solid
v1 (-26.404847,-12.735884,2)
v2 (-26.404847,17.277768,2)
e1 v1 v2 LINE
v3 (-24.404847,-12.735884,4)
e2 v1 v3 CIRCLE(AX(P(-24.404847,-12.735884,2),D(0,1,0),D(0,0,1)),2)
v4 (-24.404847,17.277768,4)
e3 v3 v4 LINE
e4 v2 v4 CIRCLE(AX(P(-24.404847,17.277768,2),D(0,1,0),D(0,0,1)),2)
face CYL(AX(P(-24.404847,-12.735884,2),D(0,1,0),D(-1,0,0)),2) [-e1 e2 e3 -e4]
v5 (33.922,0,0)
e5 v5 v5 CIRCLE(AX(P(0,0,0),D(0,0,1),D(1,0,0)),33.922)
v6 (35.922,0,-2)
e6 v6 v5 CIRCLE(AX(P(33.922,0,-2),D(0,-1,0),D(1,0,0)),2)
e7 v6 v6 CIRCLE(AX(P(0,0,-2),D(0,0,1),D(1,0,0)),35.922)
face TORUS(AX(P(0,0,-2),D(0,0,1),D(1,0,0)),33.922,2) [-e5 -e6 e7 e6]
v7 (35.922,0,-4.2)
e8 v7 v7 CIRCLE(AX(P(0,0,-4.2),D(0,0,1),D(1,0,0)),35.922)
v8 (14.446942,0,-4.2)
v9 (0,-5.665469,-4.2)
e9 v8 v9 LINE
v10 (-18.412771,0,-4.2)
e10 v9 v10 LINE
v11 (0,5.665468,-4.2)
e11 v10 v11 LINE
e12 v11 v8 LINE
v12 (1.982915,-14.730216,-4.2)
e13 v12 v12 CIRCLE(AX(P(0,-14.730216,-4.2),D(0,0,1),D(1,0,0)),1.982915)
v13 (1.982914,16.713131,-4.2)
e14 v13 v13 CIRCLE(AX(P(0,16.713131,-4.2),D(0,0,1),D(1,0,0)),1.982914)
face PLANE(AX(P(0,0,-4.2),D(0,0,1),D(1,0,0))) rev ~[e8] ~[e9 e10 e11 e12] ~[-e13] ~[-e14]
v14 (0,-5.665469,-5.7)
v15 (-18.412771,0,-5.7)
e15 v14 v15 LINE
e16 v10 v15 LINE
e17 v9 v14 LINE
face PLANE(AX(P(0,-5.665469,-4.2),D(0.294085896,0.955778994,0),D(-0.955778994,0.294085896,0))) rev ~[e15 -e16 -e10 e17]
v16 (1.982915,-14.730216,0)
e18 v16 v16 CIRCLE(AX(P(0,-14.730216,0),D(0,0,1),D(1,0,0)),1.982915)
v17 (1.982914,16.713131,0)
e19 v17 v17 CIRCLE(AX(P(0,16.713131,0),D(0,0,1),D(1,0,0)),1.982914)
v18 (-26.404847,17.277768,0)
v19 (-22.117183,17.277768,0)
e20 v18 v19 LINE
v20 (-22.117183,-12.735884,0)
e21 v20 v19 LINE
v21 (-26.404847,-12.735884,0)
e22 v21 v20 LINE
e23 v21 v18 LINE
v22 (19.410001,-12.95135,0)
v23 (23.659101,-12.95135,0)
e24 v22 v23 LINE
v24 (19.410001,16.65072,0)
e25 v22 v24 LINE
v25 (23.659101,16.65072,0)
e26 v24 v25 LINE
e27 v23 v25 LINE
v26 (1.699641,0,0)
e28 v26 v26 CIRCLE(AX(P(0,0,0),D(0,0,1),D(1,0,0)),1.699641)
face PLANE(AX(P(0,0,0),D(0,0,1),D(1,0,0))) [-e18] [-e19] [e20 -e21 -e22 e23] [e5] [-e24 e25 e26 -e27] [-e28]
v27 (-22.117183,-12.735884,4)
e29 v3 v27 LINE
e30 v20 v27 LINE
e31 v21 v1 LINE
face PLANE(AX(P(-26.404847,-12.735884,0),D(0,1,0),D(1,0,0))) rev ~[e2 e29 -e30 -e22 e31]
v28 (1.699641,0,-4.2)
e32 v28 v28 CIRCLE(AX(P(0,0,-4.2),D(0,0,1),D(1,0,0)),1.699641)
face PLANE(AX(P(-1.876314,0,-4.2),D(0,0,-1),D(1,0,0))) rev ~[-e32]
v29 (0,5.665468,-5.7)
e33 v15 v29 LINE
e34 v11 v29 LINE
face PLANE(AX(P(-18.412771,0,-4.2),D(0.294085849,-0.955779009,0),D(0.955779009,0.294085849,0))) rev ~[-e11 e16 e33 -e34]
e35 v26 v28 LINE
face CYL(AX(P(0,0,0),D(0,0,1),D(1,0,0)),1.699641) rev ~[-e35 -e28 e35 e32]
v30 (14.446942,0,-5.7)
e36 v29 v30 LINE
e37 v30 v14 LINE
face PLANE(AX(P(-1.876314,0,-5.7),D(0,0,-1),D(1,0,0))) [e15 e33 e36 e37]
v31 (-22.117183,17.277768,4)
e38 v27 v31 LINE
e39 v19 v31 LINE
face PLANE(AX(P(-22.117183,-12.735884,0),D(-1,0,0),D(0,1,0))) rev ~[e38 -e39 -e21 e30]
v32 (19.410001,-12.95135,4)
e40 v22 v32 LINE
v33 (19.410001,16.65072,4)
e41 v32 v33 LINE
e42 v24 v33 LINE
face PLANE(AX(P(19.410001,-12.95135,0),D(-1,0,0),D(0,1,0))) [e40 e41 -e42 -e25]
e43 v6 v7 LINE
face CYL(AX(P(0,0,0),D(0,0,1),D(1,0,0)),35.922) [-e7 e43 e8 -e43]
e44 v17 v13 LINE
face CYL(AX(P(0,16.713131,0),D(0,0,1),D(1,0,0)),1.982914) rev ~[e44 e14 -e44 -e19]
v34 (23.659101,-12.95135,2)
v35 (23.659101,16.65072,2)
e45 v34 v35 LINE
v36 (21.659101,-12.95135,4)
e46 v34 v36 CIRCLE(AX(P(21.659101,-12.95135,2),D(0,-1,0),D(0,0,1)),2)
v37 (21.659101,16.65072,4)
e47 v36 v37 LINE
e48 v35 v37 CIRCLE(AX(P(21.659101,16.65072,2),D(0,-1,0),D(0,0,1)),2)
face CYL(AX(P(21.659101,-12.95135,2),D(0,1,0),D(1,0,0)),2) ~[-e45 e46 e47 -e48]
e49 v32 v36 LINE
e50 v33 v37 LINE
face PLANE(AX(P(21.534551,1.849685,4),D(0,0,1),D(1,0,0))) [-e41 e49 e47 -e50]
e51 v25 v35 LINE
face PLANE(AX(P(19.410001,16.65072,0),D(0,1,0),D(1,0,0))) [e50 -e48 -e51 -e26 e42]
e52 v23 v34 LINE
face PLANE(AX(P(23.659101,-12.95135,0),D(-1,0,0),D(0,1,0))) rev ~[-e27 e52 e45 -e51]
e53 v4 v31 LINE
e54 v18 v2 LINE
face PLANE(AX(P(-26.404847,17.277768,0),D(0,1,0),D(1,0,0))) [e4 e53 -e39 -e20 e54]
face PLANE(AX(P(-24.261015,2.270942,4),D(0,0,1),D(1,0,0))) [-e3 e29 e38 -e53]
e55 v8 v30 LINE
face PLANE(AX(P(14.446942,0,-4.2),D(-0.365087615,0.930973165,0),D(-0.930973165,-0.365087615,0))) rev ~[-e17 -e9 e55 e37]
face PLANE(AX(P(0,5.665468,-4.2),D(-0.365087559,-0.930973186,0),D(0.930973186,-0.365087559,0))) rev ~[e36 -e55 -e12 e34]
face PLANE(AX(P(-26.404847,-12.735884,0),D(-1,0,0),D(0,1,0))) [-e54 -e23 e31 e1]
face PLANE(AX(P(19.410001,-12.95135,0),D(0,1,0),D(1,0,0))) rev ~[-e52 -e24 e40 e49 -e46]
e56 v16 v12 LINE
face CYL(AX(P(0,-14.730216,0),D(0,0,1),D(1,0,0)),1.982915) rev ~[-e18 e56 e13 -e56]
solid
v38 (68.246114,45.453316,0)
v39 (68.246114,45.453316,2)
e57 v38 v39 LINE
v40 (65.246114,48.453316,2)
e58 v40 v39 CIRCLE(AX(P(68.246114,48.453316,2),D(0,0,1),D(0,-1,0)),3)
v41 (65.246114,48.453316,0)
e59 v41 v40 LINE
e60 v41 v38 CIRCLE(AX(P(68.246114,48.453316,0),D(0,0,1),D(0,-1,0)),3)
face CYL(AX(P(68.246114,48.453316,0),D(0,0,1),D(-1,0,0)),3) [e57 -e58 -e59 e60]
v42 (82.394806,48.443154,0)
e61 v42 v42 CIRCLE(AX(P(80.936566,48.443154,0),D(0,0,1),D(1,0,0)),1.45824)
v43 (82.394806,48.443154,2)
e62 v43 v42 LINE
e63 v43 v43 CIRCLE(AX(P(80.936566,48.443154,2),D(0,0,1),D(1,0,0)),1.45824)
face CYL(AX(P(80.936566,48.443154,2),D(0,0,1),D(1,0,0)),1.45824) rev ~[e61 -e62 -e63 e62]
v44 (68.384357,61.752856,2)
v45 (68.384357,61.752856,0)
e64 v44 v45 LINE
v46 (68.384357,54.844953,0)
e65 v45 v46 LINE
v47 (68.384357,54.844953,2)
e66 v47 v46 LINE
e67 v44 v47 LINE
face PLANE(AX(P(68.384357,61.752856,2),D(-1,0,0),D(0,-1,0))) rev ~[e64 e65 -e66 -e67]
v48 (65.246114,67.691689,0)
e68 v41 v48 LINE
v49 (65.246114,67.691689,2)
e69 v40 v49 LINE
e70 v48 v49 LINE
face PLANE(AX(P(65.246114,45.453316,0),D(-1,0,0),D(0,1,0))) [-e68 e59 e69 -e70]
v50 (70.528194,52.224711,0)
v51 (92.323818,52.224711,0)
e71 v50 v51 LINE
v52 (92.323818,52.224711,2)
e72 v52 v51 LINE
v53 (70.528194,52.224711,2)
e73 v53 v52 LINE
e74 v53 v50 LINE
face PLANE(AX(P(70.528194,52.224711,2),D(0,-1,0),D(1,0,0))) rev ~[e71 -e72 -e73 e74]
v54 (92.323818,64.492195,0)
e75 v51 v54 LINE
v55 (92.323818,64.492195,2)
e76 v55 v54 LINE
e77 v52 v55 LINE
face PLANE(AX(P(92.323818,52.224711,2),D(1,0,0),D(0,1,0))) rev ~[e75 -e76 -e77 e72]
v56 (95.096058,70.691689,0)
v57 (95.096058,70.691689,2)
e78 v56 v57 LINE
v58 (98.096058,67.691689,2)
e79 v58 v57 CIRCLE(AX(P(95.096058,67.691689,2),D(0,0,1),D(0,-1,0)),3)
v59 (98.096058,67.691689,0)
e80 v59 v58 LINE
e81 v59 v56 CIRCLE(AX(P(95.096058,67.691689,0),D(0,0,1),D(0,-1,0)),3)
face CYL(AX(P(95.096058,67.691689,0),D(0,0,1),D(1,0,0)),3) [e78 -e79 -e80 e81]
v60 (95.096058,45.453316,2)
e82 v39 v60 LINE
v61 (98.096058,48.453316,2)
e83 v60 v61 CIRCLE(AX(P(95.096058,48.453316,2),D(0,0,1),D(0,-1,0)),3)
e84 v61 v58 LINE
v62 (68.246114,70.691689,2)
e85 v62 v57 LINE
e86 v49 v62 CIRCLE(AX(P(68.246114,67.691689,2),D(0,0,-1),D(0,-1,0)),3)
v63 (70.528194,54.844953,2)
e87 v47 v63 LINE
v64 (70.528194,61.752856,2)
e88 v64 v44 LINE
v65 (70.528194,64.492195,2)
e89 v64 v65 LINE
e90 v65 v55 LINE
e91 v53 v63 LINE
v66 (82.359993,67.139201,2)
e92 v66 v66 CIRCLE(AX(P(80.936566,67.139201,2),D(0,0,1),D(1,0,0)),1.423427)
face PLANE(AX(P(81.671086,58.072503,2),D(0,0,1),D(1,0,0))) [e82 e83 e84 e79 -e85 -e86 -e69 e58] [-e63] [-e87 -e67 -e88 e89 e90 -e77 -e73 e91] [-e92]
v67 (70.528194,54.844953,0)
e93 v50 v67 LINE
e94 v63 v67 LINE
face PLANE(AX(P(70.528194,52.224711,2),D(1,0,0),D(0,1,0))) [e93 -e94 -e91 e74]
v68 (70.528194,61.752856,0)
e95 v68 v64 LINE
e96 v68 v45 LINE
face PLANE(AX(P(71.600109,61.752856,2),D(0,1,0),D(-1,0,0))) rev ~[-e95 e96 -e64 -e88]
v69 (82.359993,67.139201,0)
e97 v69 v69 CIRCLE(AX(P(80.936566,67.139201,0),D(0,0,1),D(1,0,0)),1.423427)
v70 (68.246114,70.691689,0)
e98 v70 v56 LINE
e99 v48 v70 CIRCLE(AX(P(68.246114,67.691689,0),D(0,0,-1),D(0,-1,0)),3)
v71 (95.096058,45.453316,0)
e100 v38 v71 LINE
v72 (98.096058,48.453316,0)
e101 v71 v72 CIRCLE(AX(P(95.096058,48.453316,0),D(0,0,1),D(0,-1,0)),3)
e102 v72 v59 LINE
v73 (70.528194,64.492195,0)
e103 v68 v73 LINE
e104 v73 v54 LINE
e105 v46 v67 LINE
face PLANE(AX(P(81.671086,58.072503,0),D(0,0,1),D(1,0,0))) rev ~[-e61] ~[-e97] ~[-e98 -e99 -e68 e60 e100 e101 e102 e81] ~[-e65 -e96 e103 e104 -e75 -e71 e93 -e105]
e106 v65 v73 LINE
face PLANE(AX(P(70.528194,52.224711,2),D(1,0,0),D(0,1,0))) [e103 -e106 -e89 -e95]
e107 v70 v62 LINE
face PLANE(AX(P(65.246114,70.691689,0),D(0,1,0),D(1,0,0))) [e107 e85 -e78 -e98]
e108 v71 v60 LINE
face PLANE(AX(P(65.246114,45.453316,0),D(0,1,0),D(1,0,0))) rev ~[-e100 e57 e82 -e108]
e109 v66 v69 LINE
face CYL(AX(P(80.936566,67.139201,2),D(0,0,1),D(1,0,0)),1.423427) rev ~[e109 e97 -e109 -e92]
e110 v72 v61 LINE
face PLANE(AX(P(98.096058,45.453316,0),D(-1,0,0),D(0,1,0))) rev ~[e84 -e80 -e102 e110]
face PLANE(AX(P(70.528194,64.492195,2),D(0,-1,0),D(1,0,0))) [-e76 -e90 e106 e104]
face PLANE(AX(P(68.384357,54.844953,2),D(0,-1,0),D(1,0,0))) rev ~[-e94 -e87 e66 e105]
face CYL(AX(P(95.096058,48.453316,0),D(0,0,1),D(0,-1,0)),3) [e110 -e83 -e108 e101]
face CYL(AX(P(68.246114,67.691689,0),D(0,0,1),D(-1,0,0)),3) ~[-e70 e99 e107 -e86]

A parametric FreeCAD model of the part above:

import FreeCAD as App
import Part
import Sketcher
from FreeCAD import Vector


def edges_at(feature, points):
    """Names of the edges that pass closest to the given points."""
    edges = feature.Shape.Edges
    near = lambda p: min(range(len(edges)), key=lambda i: edges[i].distToShape(Part.Vertex(*p))[0])
    return sorted({f"Edge{near(p) + 1}" for p in points})

doc = App.newDocument("Part")
body = doc.addObject("PartDesign::Body", "Body")

# Sketch on XY plane
sketch1 = doc.addObject("Sketcher::SketchObject", "Sketch")
body.addObject(sketch1)
sketch1.AttachmentSupport = (doc.XY_Plane, [""])
sketch1.MapMode = "FlatFace"
sketch1.addGeometry(Part.Circle(Vector(0, 0, 0), Vector(0, 0, 1), 36), False)
sketch1.addConstraint([
    Sketcher.Constraint("Coincident", 0, 3, -1, 1),
    Sketcher.Constraint("Diameter", 0, 71.844),
])
pad1 = doc.addObject("PartDesign::Pad", "Pad")
body.addObject(pad1)
pad1.Profile = sketch1
pad1.Length = 4.2
pad1.Reversed = True
doc.recompute()

fillet = doc.addObject("PartDesign::Fillet", "Fillet")
body.addObject(fillet)
fillet.Base = (pad1, edges_at(pad1, [(-35.922, 0, 0)]))
fillet.Radius = 2

# Sketch on XY plane
sketch2 = doc.addObject("Sketcher::SketchObject", "Sketch001")
body.addObject(sketch2)
sketch2.AttachmentSupport = (doc.XY_Plane, [""])
sketch2.MapMode = "FlatFace"
sketch2.addGeometry([
    Part.Circle(Vector(0, 0, 0), Vector(0, 0, 1), 1.7),
    Part.Circle(Vector(0, 16.7, 0), Vector(0, 0, 1), 2),
    Part.Circle(Vector(0, -14.7, 0), Vector(0, 0, 1), 2),
], False)
sketch2.addConstraint([
    Sketcher.Constraint("Coincident", 0, 3, -1, 1),
    Sketcher.Constraint("Equal", 1, 2),
    Sketcher.Constraint("PointOnObject", 1, 3, -2),
    Sketcher.Constraint("PointOnObject", 2, 3, -2),
    Sketcher.Constraint("Diameter", 0, 3.399282),
    Sketcher.Constraint("Diameter", 1, 3.965828),
    Sketcher.Constraint("DistanceY", -1, 1, 1, 3, 16.713131),
    Sketcher.Constraint("DistanceY", 2, 3, -1, 1, 14.730216),
])
pocket1 = doc.addObject("PartDesign::Pocket", "Pocket")
body.addObject(pocket1)
pocket1.Profile = sketch2
pocket1.Length = 25

# Sketch on XY plane
sketch3 = doc.addObject("Sketcher::SketchObject", "Sketch002")
body.addObject(sketch3)
sketch3.AttachmentSupport = (doc.XY_Plane, [""])
sketch3.MapMode = "FlatFace"
sketch3.addGeometry([
    Part.LineSegment(Vector(-26.4, 17.3, 0), Vector(-26.4, -12.7, 0)),  # 0
    Part.LineSegment(Vector(-26.4, -12.7, 0), Vector(-22.1, -12.7, 0)),  # 1
    Part.LineSegment(Vector(-22.1, -12.7, 0), Vector(-22.1, 17.3, 0)),  # 2
    Part.LineSegment(Vector(-22.1, 17.3, 0), Vector(-26.4, 17.3, 0)),  # 3
    Part.LineSegment(Vector(19.4, 16.7, 0), Vector(19.4, -13, 0)),  # 4
    Part.LineSegment(Vector(19.4, -13, 0), Vector(23.7, -13, 0)),  # 5
    Part.LineSegment(Vector(23.7, -13, 0), Vector(23.7, 16.7, 0)),  # 6
    Part.LineSegment(Vector(23.7, 16.7, 0), Vector(19.4, 16.7, 0)),  # 7
], False)
sketch3.addConstraint([
    Sketcher.Constraint("Coincident", 0, 2, 1, 1),
    Sketcher.Constraint("Coincident", 1, 2, 2, 1),
    Sketcher.Constraint("Coincident", 2, 2, 3, 1),
    Sketcher.Constraint("Coincident", 3, 2, 0, 1),
    Sketcher.Constraint("Coincident", 4, 2, 5, 1),
    Sketcher.Constraint("Coincident", 5, 2, 6, 1),
    Sketcher.Constraint("Coincident", 6, 2, 7, 1),
    Sketcher.Constraint("Coincident", 7, 2, 4, 1),
    Sketcher.Constraint("Vertical", 0),
    Sketcher.Constraint("Horizontal", 1),
    Sketcher.Constraint("Vertical", 2),
    Sketcher.Constraint("Horizontal", 3),
    Sketcher.Constraint("Vertical", 4),
    Sketcher.Constraint("Horizontal", 5),
    Sketcher.Constraint("Vertical", 6),
    Sketcher.Constraint("Horizontal", 7),
    Sketcher.Constraint("DistanceX", -1, 1, 4, 2, 19.410001),
    Sketcher.Constraint("DistanceX", 5, 1, 5, 2, 4.2491),
    Sketcher.Constraint("DistanceY", 4, 2, 4, 1, 29.60207),
    Sketcher.Constraint("DistanceX", 1, 1, 1, 2, 4.287663),
    Sketcher.Constraint("DistanceY", 0, 2, 0, 1, 30.013652),
    Sketcher.Constraint("DistanceY", 4, 2, -1, 1, 12.95135),
    Sketcher.Constraint("DistanceX", 0, 2, -1, 1, 26.404847),
    Sketcher.Constraint("DistanceY", 0, 2, -1, 1, 12.735884),
])
pad2 = doc.addObject("PartDesign::Pad", "Pad001")
body.addObject(pad2)
pad2.Profile = sketch3
pad2.Length = 4
doc.recompute()

fillet2 = doc.addObject("PartDesign::Fillet", "Fillet001")
body.addObject(fillet2)
fillet2.Base = (pad2, edges_at(pad2, [(-26.405, 2.271, 4)]))
fillet2.Radius = 2
doc.recompute()

fillet3 = doc.addObject("PartDesign::Fillet", "Fillet002")
body.addObject(fillet3)
fillet3.Base = (fillet2, edges_at(fillet2, [(23.659, 1.85, 4)]))
fillet3.Radius = 2

# Sketch on XY plane
sketch4 = doc.addObject("Sketcher::SketchObject", "Sketch003")
body.addObject(sketch4)
sketch4.AttachmentSupport = (doc.XY_Plane, [""])
sketch4.MapMode = "FlatFace"
sketch4.AttachmentOffset = App.Placement(Vector(0, 0, -4.2), App.Rotation())
sketch4.addGeometry([
    Part.LineSegment(Vector(0, -6, 0), Vector(-18, 0, 0)),
    Part.LineSegment(Vector(-18, 0, 0), Vector(0, 6, 0)),
    Part.LineSegment(Vector(0, 6, 0), Vector(14, 0, 0)),
    Part.LineSegment(Vector(14, 0, 0), Vector(0, -6, 0)),
], False)
sketch4.addConstraint([
    Sketcher.Constraint("Coincident", 0, 2, 1, 1),
    Sketcher.Constraint("Coincident", 1, 2, 2, 1),
    Sketcher.Constraint("Coincident", 2, 2, 3, 1),
    Sketcher.Constraint("Coincident", 3, 2, 0, 1),
    Sketcher.Constraint("Symmetric", 1, 2, 3, 2, -1, 1),
    Sketcher.Constraint("PointOnObject", 0, 2, -1),
    Sketcher.Constraint("PointOnObject", 1, 2, -2),
    Sketcher.Constraint("PointOnObject", 2, 2, -1),
    Sketcher.Constraint("DistanceX", 0, 2, -1, 1, 18.412771),
    Sketcher.Constraint("DistanceY", 3, 2, -1, 1, 5.665469),
    Sketcher.Constraint("Distance", 2, 15.518108),
])
pad3 = doc.addObject("PartDesign::Pad", "Pad002")
body.addObject(pad3)
pad3.Profile = sketch4
pad3.Length = 1.5
pad3.Reversed = True
body2 = doc.addObject("PartDesign::Body", "Body001")

# Sketch on XY plane
sketch5 = doc.addObject("Sketcher::SketchObject", "Sketch004")
body2.addObject(sketch5)
sketch5.AttachmentSupport = (doc.getObject("XY_Plane001"), [""])
sketch5.MapMode = "FlatFace"
sketch5.addGeometry([
    Part.LineSegment(Vector(65, 71, 0), Vector(65, 45, 0)),
    Part.LineSegment(Vector(65, 45, 0), Vector(98, 45, 0)),
    Part.LineSegment(Vector(98, 45, 0), Vector(98, 71, 0)),
    Part.LineSegment(Vector(98, 71, 0), Vector(65, 71, 0)),
], False)
sketch5.addConstraint([
    Sketcher.Constraint("Coincident", 0, 2, 1, 1),
    Sketcher.Constraint("Coincident", 1, 2, 2, 1),
    Sketcher.Constraint("Coincident", 2, 2, 3, 1),
    Sketcher.Constraint("Coincident", 3, 2, 0, 1),
    Sketcher.Constraint("Vertical", 0),
    Sketcher.Constraint("Horizontal", 1),
    Sketcher.Constraint("Vertical", 2),
    Sketcher.Constraint("Horizontal", 3),
    Sketcher.Constraint("DistanceX", 1, 1, 1, 2, 32.849945),
    Sketcher.Constraint("DistanceY", 0, 2, 0, 1, 25.238373),
    Sketcher.Constraint("DistanceX", -1, 1, 1, 2, 98.096058),
    Sketcher.Constraint("DistanceY", -1, 1, 2, 2, 70.691689),
])
pad4 = doc.addObject("PartDesign::Pad", "Pad003")
body2.addObject(pad4)
pad4.Profile = sketch5
pad4.Length = 2
doc.recompute()

fillet4 = doc.addObject("PartDesign::Fillet", "Fillet003")
body2.addObject(fillet4)
fillet4.Base = (pad4, edges_at(pad4, [
    (65.246, 70.692, 1),
    (98.096, 45.453, 1),
    (98.096, 70.692, 1),
    (65.246, 45.453, 1),
]))
fillet4.Radius = 3

# Sketch on XY plane
sketch6 = doc.addObject("Sketcher::SketchObject", "Sketch005")
body2.addObject(sketch6)
sketch6.AttachmentSupport = (doc.getObject("XY_Plane001"), [""])
sketch6.MapMode = "FlatFace"
sketch6.AttachmentOffset = App.Placement(Vector(0, 0, 2), App.Rotation())
sketch6.addGeometry([
    Part.LineSegment(Vector(70.5, 54.8, 0), Vector(70.5, 52.2, 0)),  # 0
    Part.LineSegment(Vector(70.5, 52.2, 0), Vector(92.3, 52.2, 0)),  # 1
    Part.LineSegment(Vector(92.3, 52.2, 0), Vector(92.3, 64.5, 0)),  # 2
    Part.LineSegment(Vector(92.3, 64.5, 0), Vector(70.5, 64.5, 0)),  # 3
    Part.LineSegment(Vector(70.5, 64.5, 0), Vector(70.5, 61.8, 0)),  # 4
    Part.LineSegment(Vector(70.5, 61.8, 0), Vector(68.4, 61.8, 0)),  # 5
    Part.LineSegment(Vector(68.4, 61.8, 0), Vector(68.4, 54.8, 0)),  # 6
    Part.LineSegment(Vector(68.4, 54.8, 0), Vector(70.5, 54.8, 0)),  # 7
], False)
sketch6.addConstraint([
    Sketcher.Constraint("Coincident", 0, 2, 1, 1),
    Sketcher.Constraint("Coincident", 1, 2, 2, 1),
    Sketcher.Constraint("Coincident", 2, 2, 3, 1),
    Sketcher.Constraint("Coincident", 3, 2, 4, 1),
    Sketcher.Constraint("Coincident", 4, 2, 5, 1),
    Sketcher.Constraint("Coincident", 5, 2, 6, 1),
    Sketcher.Constraint("Coincident", 6, 2, 7, 1),
    Sketcher.Constraint("Coincident", 7, 2, 0, 1),
    Sketcher.Constraint("Vertical", 0),
    Sketcher.Constraint("Horizontal", 1),
    Sketcher.Constraint("Vertical", 2),
    Sketcher.Constraint("Horizontal", 3),
    Sketcher.Constraint("Vertical", 4),
    Sketcher.Constraint("Horizontal", 5),
    Sketcher.Constraint("Vertical", 6),
    Sketcher.Constraint("Horizontal", 7),
    Sketcher.Constraint("Vertical", 0, 2, 3, 2),
    Sketcher.Constraint("DistanceY", 4, 2, 4, 1, 2.739339),
    Sketcher.Constraint("DistanceX", 1, 1, 1, 2, 21.795623),
    Sketcher.Constraint("DistanceX", 5, 2, 5, 1, 2.143838),
    Sketcher.Constraint("DistanceY", 0, 2, 0, 1, 2.620242),
    Sketcher.Constraint("DistanceY", 2, 1, 2, 2, 12.267485),
    Sketcher.Constraint("DistanceY", -1, 1, 0, 2, 52.224711),
    Sketcher.Constraint("DistanceX", -1, 1, 0, 2, 70.528194),
])
pocket2 = doc.addObject("PartDesign::Pocket", "Pocket001")
body2.addObject(pocket2)
pocket2.Profile = sketch6
pocket2.Length = 25

# Sketch on XY plane
sketch7 = doc.addObject("Sketcher::SketchObject", "Sketch006")
body2.addObject(sketch7)
sketch7.AttachmentSupport = (doc.getObject("XY_Plane001"), [""])
sketch7.MapMode = "FlatFace"
sketch7.AttachmentOffset = App.Placement(Vector(0, 0, 2), App.Rotation())
sketch7.addGeometry([
    Part.Circle(Vector(80.9, 67.1, 0), Vector(0, 0, 1), 1.4),
    Part.Circle(Vector(80.9, 48.4, 0), Vector(0, 0, 1), 1.5),
], False)
sketch7.addConstraint([
    Sketcher.Constraint("Vertical", 0, 3, 1, 3),
    Sketcher.Constraint("Diameter", 1, 2.91648),
    Sketcher.Constraint("Diameter", 0, 2.846854),
    Sketcher.Constraint("DistanceY", -1, 1, 0, 3, 67.139201),
    Sketcher.Constraint("DistanceX", -1, 1, 0, 3, 80.936566),
    Sketcher.Constraint("DistanceY", -1, 1, 1, 3, 48.443154),
])
pocket3 = doc.addObject("PartDesign::Pocket", "Pocket002")
body2.addObject(pocket3)
pocket3.Profile = sketch7
pocket3.Length = 25

doc.recompute()
